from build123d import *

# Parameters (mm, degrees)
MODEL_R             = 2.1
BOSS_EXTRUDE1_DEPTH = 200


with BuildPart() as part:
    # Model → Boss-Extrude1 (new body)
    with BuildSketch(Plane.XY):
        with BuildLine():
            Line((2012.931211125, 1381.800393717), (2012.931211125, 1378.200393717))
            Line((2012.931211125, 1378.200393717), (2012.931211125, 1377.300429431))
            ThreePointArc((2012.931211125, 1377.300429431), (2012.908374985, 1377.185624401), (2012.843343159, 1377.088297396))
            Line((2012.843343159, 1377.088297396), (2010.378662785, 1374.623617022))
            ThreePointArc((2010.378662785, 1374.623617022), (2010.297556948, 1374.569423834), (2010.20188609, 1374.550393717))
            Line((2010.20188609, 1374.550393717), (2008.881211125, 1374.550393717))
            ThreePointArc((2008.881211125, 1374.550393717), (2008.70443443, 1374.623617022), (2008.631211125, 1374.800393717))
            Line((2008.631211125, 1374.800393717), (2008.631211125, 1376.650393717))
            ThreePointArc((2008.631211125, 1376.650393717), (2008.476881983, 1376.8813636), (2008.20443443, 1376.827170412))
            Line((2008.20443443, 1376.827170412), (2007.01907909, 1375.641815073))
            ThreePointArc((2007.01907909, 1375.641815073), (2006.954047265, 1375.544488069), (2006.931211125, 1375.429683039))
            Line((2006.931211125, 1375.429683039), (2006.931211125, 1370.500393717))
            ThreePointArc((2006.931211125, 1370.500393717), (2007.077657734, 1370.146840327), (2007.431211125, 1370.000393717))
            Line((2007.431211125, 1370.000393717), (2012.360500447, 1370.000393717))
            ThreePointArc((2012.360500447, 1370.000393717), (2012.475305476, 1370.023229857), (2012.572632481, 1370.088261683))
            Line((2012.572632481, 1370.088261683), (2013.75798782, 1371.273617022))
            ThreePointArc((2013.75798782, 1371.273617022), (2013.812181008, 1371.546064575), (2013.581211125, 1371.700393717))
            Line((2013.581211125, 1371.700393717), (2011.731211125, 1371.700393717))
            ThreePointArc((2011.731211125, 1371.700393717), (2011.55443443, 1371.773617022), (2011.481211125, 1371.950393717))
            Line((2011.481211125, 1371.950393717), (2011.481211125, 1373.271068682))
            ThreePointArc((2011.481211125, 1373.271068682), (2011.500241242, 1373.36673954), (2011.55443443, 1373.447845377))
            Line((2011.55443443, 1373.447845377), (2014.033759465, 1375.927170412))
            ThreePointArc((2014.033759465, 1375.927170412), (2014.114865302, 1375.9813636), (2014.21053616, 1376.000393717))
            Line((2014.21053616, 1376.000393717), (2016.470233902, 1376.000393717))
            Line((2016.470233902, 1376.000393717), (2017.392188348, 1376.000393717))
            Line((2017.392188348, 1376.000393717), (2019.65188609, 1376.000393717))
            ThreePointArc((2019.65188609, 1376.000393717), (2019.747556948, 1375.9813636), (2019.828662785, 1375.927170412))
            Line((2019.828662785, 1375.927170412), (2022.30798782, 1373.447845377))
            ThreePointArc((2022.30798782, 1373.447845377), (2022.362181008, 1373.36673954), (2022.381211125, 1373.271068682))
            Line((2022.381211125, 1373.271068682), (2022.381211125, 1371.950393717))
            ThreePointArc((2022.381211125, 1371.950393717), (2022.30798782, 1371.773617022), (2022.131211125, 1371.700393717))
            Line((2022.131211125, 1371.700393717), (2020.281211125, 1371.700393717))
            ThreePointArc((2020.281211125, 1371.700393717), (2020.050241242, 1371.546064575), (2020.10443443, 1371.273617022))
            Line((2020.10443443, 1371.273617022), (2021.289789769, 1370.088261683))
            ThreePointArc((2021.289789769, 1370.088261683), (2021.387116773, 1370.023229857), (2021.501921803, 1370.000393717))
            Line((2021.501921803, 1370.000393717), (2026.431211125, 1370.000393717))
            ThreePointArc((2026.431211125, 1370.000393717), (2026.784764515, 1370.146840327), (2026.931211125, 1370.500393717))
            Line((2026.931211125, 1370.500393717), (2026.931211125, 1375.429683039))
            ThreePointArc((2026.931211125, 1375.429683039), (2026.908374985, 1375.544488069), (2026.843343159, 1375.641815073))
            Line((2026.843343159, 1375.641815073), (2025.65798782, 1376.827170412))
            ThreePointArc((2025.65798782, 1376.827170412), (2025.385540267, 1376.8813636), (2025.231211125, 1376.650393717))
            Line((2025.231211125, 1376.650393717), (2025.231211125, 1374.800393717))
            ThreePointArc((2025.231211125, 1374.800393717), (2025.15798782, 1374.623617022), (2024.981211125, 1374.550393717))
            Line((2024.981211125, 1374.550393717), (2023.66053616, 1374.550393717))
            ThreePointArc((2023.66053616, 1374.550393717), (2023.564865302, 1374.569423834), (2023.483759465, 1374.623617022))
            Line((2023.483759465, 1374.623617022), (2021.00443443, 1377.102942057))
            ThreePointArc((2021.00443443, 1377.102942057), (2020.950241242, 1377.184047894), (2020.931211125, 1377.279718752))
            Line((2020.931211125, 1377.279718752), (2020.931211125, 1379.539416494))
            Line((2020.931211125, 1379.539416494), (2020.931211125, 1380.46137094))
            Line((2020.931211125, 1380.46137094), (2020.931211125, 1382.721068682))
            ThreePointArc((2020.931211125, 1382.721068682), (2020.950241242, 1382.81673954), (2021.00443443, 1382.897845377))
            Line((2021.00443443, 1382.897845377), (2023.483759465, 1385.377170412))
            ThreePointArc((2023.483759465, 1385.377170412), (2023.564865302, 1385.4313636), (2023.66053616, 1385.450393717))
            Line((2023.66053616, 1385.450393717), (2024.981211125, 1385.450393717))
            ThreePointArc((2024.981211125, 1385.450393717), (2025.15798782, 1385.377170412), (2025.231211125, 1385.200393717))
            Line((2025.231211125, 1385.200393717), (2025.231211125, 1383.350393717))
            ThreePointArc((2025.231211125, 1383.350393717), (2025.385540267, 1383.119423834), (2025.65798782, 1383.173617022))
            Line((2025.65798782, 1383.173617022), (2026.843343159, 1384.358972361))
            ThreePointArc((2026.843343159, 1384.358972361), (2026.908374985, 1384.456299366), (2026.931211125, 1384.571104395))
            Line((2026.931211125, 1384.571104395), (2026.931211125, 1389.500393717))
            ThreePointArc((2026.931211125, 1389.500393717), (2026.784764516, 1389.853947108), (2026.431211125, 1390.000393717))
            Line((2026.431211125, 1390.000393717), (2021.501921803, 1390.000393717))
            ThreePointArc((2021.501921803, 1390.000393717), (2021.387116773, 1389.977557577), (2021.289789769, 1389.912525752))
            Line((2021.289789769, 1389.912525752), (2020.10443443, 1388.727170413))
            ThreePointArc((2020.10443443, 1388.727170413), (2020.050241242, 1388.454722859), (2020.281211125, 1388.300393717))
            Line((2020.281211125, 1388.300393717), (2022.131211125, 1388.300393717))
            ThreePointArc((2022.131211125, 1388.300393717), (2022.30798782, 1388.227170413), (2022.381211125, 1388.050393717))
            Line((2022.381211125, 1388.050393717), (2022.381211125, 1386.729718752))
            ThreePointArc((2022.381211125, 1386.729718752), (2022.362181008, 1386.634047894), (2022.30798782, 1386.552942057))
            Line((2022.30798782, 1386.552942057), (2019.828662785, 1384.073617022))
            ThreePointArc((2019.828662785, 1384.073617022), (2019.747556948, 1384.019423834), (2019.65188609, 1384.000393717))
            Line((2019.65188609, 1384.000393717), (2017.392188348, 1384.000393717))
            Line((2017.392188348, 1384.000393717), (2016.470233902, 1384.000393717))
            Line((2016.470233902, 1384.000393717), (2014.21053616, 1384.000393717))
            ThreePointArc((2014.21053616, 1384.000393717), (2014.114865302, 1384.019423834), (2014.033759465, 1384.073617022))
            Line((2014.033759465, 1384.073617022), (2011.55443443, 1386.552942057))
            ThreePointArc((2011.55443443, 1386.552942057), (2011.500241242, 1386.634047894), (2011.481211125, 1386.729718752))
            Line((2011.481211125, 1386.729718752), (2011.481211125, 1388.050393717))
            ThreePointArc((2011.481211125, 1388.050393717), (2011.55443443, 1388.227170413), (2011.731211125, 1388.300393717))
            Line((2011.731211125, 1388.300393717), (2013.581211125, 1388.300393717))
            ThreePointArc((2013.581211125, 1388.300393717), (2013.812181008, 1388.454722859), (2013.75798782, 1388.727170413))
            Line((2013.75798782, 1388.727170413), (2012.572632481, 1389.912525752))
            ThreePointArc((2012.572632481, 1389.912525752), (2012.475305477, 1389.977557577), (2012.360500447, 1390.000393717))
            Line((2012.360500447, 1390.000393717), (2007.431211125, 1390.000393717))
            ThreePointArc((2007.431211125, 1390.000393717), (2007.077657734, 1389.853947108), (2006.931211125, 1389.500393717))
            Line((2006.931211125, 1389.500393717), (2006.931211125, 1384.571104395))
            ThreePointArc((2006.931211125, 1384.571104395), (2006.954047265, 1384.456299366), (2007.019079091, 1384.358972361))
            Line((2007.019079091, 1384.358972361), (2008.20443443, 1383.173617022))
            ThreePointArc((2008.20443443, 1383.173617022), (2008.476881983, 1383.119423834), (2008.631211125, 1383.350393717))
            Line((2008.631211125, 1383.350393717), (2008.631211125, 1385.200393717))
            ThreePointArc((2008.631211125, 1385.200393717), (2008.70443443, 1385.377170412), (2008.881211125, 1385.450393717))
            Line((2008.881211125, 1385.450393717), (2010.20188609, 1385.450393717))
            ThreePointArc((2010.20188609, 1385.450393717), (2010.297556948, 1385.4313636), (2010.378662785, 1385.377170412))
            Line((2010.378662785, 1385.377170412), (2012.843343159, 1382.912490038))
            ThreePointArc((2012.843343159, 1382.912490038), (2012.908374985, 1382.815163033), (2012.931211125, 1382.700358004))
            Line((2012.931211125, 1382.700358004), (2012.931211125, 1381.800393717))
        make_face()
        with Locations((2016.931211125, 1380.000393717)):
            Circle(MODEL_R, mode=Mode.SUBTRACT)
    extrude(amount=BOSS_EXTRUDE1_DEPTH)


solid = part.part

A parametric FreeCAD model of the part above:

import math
import FreeCAD as App
import Part
import Sketcher
from FreeCAD import Vector

doc = App.newDocument("Part")
params = doc.addObject("Spreadsheet::Sheet", "Params")
for row, (alias, value) in enumerate([
    ("sketch1_diameter", "4.2 mm"),
    ("sketch1_radius", "0.3 mm"),
    ("sketch1_radius2", "0.5 mm"),
    ("sketch1_radius3", "0.25 mm"),
    ("sketch1_width", "1.85 mm"),
    ("pad1_length", "200 mm"),
], start=1):
    params.set(f"A{row}", alias)
    params.set(f"B{row}", "=" + value)
    params.setAlias(f"B{row}", alias)

body = doc.addObject("PartDesign::Body", "Body")

# Sketch on XY plane
sketch1 = body.newObject("Sketcher::SketchObject", "Sketch")
sketch1.AttachmentSupport = (doc.getObject("XY_Plane"), [""])
sketch1.MapMode = "FlatFace"
sketch1.addGeometry(Part.ArcOfCircle(Part.Circle(Vector(2012.631211, 1377.300429, 0), Vector(0, 0, 1), 0.3), math.radians(-45), math.radians(0)), False)
sketch1.addGeometry(Part.LineSegment(Vector(2012.843343, 1377.088297, 0), Vector(2010.378663, 1374.623617, 0)), False)
sketch1.addGeometry(Part.ArcOfCircle(Part.Circle(Vector(2010.201886, 1374.800394, 0), Vector(0, 0, 1), 0.25), math.radians(-90), math.radians(-45)), False)
sketch1.addGeometry(Part.LineSegment(Vector(2010.201886, 1374.550394, 0), Vector(2008.881211, 1374.550394, 0)), False)
sketch1.addGeometry(Part.ArcOfCircle(Part.Circle(Vector(2008.881211, 1374.800394, 0), Vector(0, 0, 1), 0.25), math.radians(-180), math.radians(-90)), False)
sketch1.addGeometry(Part.LineSegment(Vector(2008.631211, 1374.800394, 0), Vector(2008.631211, 1376.650394, 0)), False)
sketch1.addGeometry(Part.ArcOfCircle(Part.Circle(Vector(2008.381211, 1376.650394, 0), Vector(0, 0, 1), 0.25), math.radians(0), math.radians(135)), False)
sketch1.addGeometry(Part.LineSegment(Vector(2008.204434, 1376.82717, 0), Vector(2007.019079, 1375.641815, 0)), False)
sketch1.addGeometry(Part.ArcOfCircle(Part.Circle(Vector(2007.231211, 1375.429683, 0), Vector(0, 0, 1), 0.3), math.radians(135), math.radians(180)), False)
sketch1.addGeometry(Part.LineSegment(Vector(2006.931211, 1375.429683, 0), Vector(2006.931211, 1370.500394, 0)), False)
sketch1.addGeometry(Part.ArcOfCircle(Part.Circle(Vector(2007.431211, 1370.500394, 0), Vector(0, 0, 1), 0.5), math.radians(180), math.radians(270)), False)
sketch1.addGeometry(Part.LineSegment(Vector(2007.431211, 1370.000394, 0), Vector(2012.3605, 1370.000394, 0)), False)
sketch1.addGeometry(Part.ArcOfCircle(Part.Circle(Vector(2012.3605, 1370.300394, 0), Vector(0, 0, 1), 0.3), math.radians(-90), math.radians(-45)), False)
sketch1.addGeometry(Part.LineSegment(Vector(2012.572632, 1370.088262, 0), Vector(2013.757988, 1371.273617, 0)), False)
sketch1.addGeometry(Part.ArcOfCircle(Part.Circle(Vector(2013.581211, 1371.450394, 0), Vector(0, 0, 1), 0.25), math.radians(-45), math.radians(90)), False)
sketch1.addGeometry(Part.LineSegment(Vector(2013.581211, 1371.700394, 0), Vector(2011.731211, 1371.700394, 0)), False)
sketch1.addGeometry(Part.ArcOfCircle(Part.Circle(Vector(2011.731211, 1371.950394, 0), Vector(0, 0, 1), 0.25), math.radians(-180), math.radians(-90)), False)
sketch1.addGeometry(Part.LineSegment(Vector(2011.481211, 1371.950394, 0), Vector(2011.481211, 1373.271069, 0)), False)
sketch1.addGeometry(Part.ArcOfCircle(Part.Circle(Vector(2011.731211, 1373.271069, 0), Vector(0, 0, 1), 0.25), math.radians(135), math.radians(180)), False)
sketch1.addGeometry(Part.LineSegment(Vector(2011.554434, 1373.447845, 0), Vector(2014.033759, 1375.92717, 0)), False)
sketch1.addGeometry(Part.ArcOfCircle(Part.Circle(Vector(2014.210536, 1375.750394, 0), Vector(0, 0, 1), 0.25), math.radians(90), math.radians(135)), False)
sketch1.addGeometry(Part.LineSegment(Vector(2014.210536, 1376.000394, 0), Vector(2019.651886, 1376.000394, 0)), False)
sketch1.addGeometry(Part.ArcOfCircle(Part.Circle(Vector(2019.651886, 1375.750394, 0), Vector(0, 0, 1), 0.25), math.radians(45), math.radians(90)), False)
sketch1.addGeometry(Part.LineSegment(Vector(2019.828663, 1375.92717, 0), Vector(2022.307988, 1373.447845, 0)), False)
sketch1.addGeometry(Part.ArcOfCircle(Part.Circle(Vector(2022.131211, 1373.271069, 0), Vector(0, 0, 1), 0.25), math.radians(0), math.radians(45)), False)
sketch1.addGeometry(Part.LineSegment(Vector(2022.381211, 1373.271069, 0), Vector(2022.381211, 1371.950394, 0)), False)
sketch1.addGeometry(Part.ArcOfCircle(Part.Circle(Vector(2022.131211, 1371.950394, 0), Vector(0, 0, 1), 0.25), math.radians(-90), math.radians(0)), False)
sketch1.addGeometry(Part.LineSegment(Vector(2022.131211, 1371.700394, 0), Vector(2020.281211, 1371.700394, 0)), False)
sketch1.addGeometry(Part.ArcOfCircle(Part.Circle(Vector(2020.281211, 1371.450394, 0), Vector(0, 0, 1), 0.25), math.radians(90), math.radians(225)), False)
sketch1.addGeometry(Part.LineSegment(Vector(2020.104434, 1371.273617, 0), Vector(2021.28979, 1370.088262, 0)), False)
sketch1.addGeometry(Part.ArcOfCircle(Part.Circle(Vector(2021.501922, 1370.300394, 0), Vector(0, 0, 1), 0.3), math.radians(-135.000001), math.radians(-90)), False)
sketch1.addGeometry(Part.LineSegment(Vector(2021.501922, 1370.000394, 0), Vector(2026.431211, 1370.000394, 0)), False)
sketch1.addGeometry(Part.ArcOfCircle(Part.Circle(Vector(2026.431211, 1370.500394, 0), Vector(0, 0, 1), 0.5), math.radians(-90), math.radians(0)), False)
sketch1.addGeometry(Part.LineSegment(Vector(2026.931211, 1370.500394, 0), Vector(2026.931211, 1375.429683, 0)), False)
sketch1.addGeometry(Part.ArcOfCircle(Part.Circle(Vector(2026.631211, 1375.429683, 0), Vector(0, 0, 1), 0.3), math.radians(0), math.radians(45.000001)), False)
sketch1.addGeometry(Part.LineSegment(Vector(2026.843343, 1375.641815, 0), Vector(2025.657988, 1376.82717, 0)), False)
sketch1.addGeometry(Part.ArcOfCircle(Part.Circle(Vector(2025.481211, 1376.650394, 0), Vector(0, 0, 1), 0.25), math.radians(45), math.radians(180)), False)
sketch1.addGeometry(Part.LineSegment(Vector(2025.231211, 1376.650394, 0), Vector(2025.231211, 1374.800394, 0)), False)
sketch1.addGeometry(Part.ArcOfCircle(Part.Circle(Vector(2024.981211, 1374.800394, 0), Vector(0, 0, 1), 0.25), math.radians(-90), math.radians(0)), False)
sketch1.addGeometry(Part.LineSegment(Vector(2024.981211, 1374.550394, 0), Vector(2023.660536, 1374.550394, 0)), False)
sketch1.addGeometry(Part.ArcOfCircle(Part.Circle(Vector(2023.660536, 1374.800394, 0), Vector(0, 0, 1), 0.25), math.radians(-135), math.radians(-90)), False)
sketch1.addGeometry(Part.LineSegment(Vector(2023.483759, 1374.623617, 0), Vector(2021.004434, 1377.102942, 0)), False)
sketch1.addGeometry(Part.ArcOfCircle(Part.Circle(Vector(2021.181211, 1377.279719, 0), Vector(0, 0, 1), 0.25), math.radians(180), math.radians(225)), False)
sketch1.addGeometry(Part.LineSegment(Vector(2020.931211, 1377.279719, 0), Vector(2020.931211, 1382.721069, 0)), False)
sketch1.addGeometry(Part.ArcOfCircle(Part.Circle(Vector(2021.181211, 1382.721069, 0), Vector(0, 0, 1), 0.25), math.radians(135), math.radians(180)), False)
sketch1.addGeometry(Part.LineSegment(Vector(2021.004434, 1382.897845, 0), Vector(2023.483759, 1385.37717, 0)), False)
sketch1.addGeometry(Part.ArcOfCircle(Part.Circle(Vector(2023.660536, 1385.200394, 0), Vector(0, 0, 1), 0.25), math.radians(90), math.radians(135)), False)
sketch1.addGeometry(Part.LineSegment(Vector(2023.660536, 1385.450394, 0), Vector(2024.981211, 1385.450394, 0)), False)
sketch1.addGeometry(Part.ArcOfCircle(Part.Circle(Vector(2024.981211, 1385.200394, 0), Vector(0, 0, 1), 0.25), math.radians(0), math.radians(90)), False)
sketch1.addGeometry(Part.LineSegment(Vector(2025.231211, 1385.200394, 0), Vector(2025.231211, 1383.350394, 0)), False)
sketch1.addGeometry(Part.ArcOfCircle(Part.Circle(Vector(2025.481211, 1383.350394, 0), Vector(0, 0, 1), 0.25), math.radians(180), math.radians(315)), False)
sketch1.addGeometry(Part.LineSegment(Vector(2025.657988, 1383.173617, 0), Vector(2026.843343, 1384.358972, 0)), False)
sketch1.addGeometry(Part.ArcOfCircle(Part.Circle(Vector(2026.631211, 1384.571104, 0), Vector(0, 0, 1), 0.3), math.radians(-45), math.radians(0)), False)
sketch1.addGeometry(Part.LineSegment(Vector(2026.931211, 1384.571104, 0), Vector(2026.931211, 1389.500394, 0)), False)
sketch1.addGeometry(Part.ArcOfCircle(Part.Circle(Vector(2026.431211, 1389.500394, 0), Vector(0, 0, 1), 0.5), math.radians(0), math.radians(90)), False)
sketch1.addGeometry(Part.LineSegment(Vector(2026.431211, 1390.000394, 0), Vector(2021.501922, 1390.000394, 0)), False)
sketch1.addGeometry(Part.ArcOfCircle(Part.Circle(Vector(2021.501922, 1389.700394, 0), Vector(0, 0, 1), 0.3), math.radians(90), math.radians(135)), False)
sketch1.addGeometry(Part.LineSegment(Vector(2021.28979, 1389.912526, 0), Vector(2020.104434, 1388.72717, 0)), False)
sketch1.addGeometry(Part.ArcOfCircle(Part.Circle(Vector(2020.281211, 1388.550394, 0), Vector(0, 0, 1), 0.25), math.radians(135), math.radians(270)), False)
sketch1.addGeometry(Part.LineSegment(Vector(2020.281211, 1388.300394, 0), Vector(2022.131211, 1388.300394, 0)), False)
sketch1.addGeometry(Part.ArcOfCircle(Part.Circle(Vector(2022.131211, 1388.050394, 0), Vector(0, 0, 1), 0.25), math.radians(0), math.radians(90)), False)
sketch1.addGeometry(Part.LineSegment(Vector(2022.381211, 1388.050394, 0), Vector(2022.381211, 1386.729719, 0)), False)
sketch1.addGeometry(Part.ArcOfCircle(Part.Circle(Vector(2022.131211, 1386.729719, 0), Vector(0, 0, 1), 0.25), math.radians(-45), math.radians(0)), False)
sketch1.addGeometry(Part.LineSegment(Vector(2022.307988, 1386.552942, 0), Vector(2019.828663, 1384.073617, 0)), False)
sketch1.addGeometry(Part.ArcOfCircle(Part.Circle(Vector(2019.651886, 1384.250394, 0), Vector(0, 0, 1), 0.25), math.radians(-90), math.radians(-45)), False)
sketch1.addGeometry(Part.LineSegment(Vector(2019.651886, 1384.000394, 0), Vector(2014.210536, 1384.000394, 0)), False)
sketch1.addGeometry(Part.ArcOfCircle(Part.Circle(Vector(2014.210536, 1384.250394, 0), Vector(0, 0, 1), 0.25), math.radians(-135), math.radians(-90)), False)
sketch1.addGeometry(Part.LineSegment(Vector(2014.033759, 1384.073617, 0), Vector(2011.554434, 1386.552942, 0)), False)
sketch1.addGeometry(Part.ArcOfCircle(Part.Circle(Vector(2011.731211, 1386.729719, 0), Vector(0, 0, 1), 0.25), math.radians(180), math.radians(225)), False)
sketch1.addGeometry(Part.LineSegment(Vector(2011.481211, 1386.729719, 0), Vector(2011.481211, 1388.050394, 0)), False)
sketch1.addGeometry(Part.ArcOfCircle(Part.Circle(Vector(2011.731211, 1388.050394, 0), Vector(0, 0, 1), 0.25), math.radians(90), math.radians(180)), False)
sketch1.addGeometry(Part.LineSegment(Vector(2011.731211, 1388.300394, 0), Vector(2013.581211, 1388.300394, 0)), False)
sketch1.addGeometry(Part.ArcOfCircle(Part.Circle(Vector(2013.581211, 1388.550394, 0), Vector(0, 0, 1), 0.25), math.radians(-90), math.radians(45)), False)
sketch1.addGeometry(Part.LineSegment(Vector(2013.757988, 1388.72717, 0), Vector(2012.572632, 1389.912526, 0)), False)
sketch1.addGeometry(Part.ArcOfCircle(Part.Circle(Vector(2012.3605, 1389.700394, 0), Vector(0, 0, 1), 0.3), math.radians(45), math.radians(90)), False)
sketch1.addGeometry(Part.LineSegment(Vector(2012.3605, 1390.000394, 0), Vector(2007.431211, 1390.000394, 0)), False)
sketch1.addGeometry(Part.ArcOfCircle(Part.Circle(Vector(2007.431211, 1389.500394, 0), Vector(0, 0, 1), 0.5), math.radians(90), math.radians(180)), False)
sketch1.addGeometry(Part.LineSegment(Vector(2006.931211, 1389.500394, 0), Vector(2006.931211, 1384.571104, 0)), False)
sketch1.addGeometry(Part.ArcOfCircle(Part.Circle(Vector(2007.231211, 1384.571104, 0), Vector(0, 0, 1), 0.3), math.radians(180), math.radians(225)), False)
sketch1.addGeometry(Part.LineSegment(Vector(2007.019079, 1384.358972, 0), Vector(2008.204434, 1383.173617, 0)), False)
sketch1.addGeometry(Part.ArcOfCircle(Part.Circle(Vector(2008.381211, 1383.350394, 0), Vector(0, 0, 1), 0.25), math.radians(-135), math.radians(0)), False)
sketch1.addGeometry(Part.LineSegment(Vector(2008.631211, 1383.350394, 0), Vector(2008.631211, 1385.200394, 0)), False)
sketch1.addGeometry(Part.ArcOfCircle(Part.Circle(Vector(2008.881211, 1385.200394, 0), Vector(0, 0, 1), 0.25), math.radians(90), math.radians(180)), False)
sketch1.addGeometry(Part.LineSegment(Vector(2008.881211, 1385.450394, 0), Vector(2010.201886, 1385.450394, 0)), False)
sketch1.addGeometry(Part.ArcOfCircle(Part.Circle(Vector(2010.201886, 1385.200394, 0), Vector(0, 0, 1), 0.25), math.radians(45), math.radians(90)), False)
sketch1.addGeometry(Part.LineSegment(Vector(2010.378663, 1385.37717, 0), Vector(2012.843343, 1382.91249, 0)), False)
sketch1.addGeometry(Part.ArcOfCircle(Part.Circle(Vector(2012.631211, 1382.700358, 0), Vector(0, 0, 1), 0.3), math.radians(0), math.radians(45)), False)
sketch1.addGeometry(Part.LineSegment(Vector(2012.931211, 1382.700358, 0), Vector(2012.931211, 1377.300429, 0)), False)
sketch1.addGeometry(Part.Circle(Vector(2016.931211, 1380.000394, 0), Vector(0, 0, 1), 2.1), False)
sketch1.addConstraint(Sketcher.Constraint("Tangent", 0, 1, 1, 1))
sketch1.addConstraint(Sketcher.Constraint("Tangent", 1, 2, 2, 2))
sketch1.addConstraint(Sketcher.Constraint("Tangent", 2, 1, 3, 1))
sketch1.addConstraint(Sketcher.Constraint("Tangent", 3, 2, 4, 2))
sketch1.addConstraint(Sketcher.Constraint("Tangent", 4, 1, 5, 1))
sketch1.addConstraint(Sketcher.Constraint("Tangent", 5, 2, 6, 1))
sketch1.addConstraint(Sketcher.Constraint("Tangent", 6, 2, 7, 1))
sketch1.addConstraint(Sketcher.Constraint("Tangent", 7, 2, 8, 1))
sketch1.addConstraint(Sketcher.Constraint("Tangent", 8, 2, 9, 1))
sketch1.addConstraint(Sketcher.Constraint("Tangent", 9, 2, 10, 1))
sketch1.addConstraint(Sketcher.Constraint("Tangent", 10, 2, 11, 1))
sketch1.addConstraint(Sketcher.Constraint("Tangent", 11, 2, 12, 1))
sketch1.addConstraint(Sketcher.Constraint("Tangent", 12, 2, 13, 1))
sketch1.addConstraint(Sketcher.Constraint("Tangent", 13, 2, 14, 1))
sketch1.addConstraint(Sketcher.Constraint("Tangent", 14, 2, 15, 1))
sketch1.addConstraint(Sketcher.Constraint("Tangent", 15, 2, 16, 2))
sketch1.addConstraint(Sketcher.Constraint("Tangent", 16, 1, 17, 1))
sketch1.addConstraint(Sketcher.Constraint("Tangent", 17, 2, 18, 2))
sketch1.addConstraint(Sketcher.Constraint("Tangent", 18, 1, 19, 1))
sketch1.addConstraint(Sketcher.Constraint("Tangent", 19, 2, 20, 2))
sketch1.addConstraint(Sketcher.Constraint("Tangent", 20, 1, 21, 1))
sketch1.addConstraint(Sketcher.Constraint("Tangent", 21, 2, 22, 2))
sketch1.addConstraint(Sketcher.Constraint("Tangent", 22, 1, 23, 1))
sketch1.addConstraint(Sketcher.Constraint("Tangent", 23, 2, 24, 2))
sketch1.addConstraint(Sketcher.Constraint("Tangent", 24, 1, 25, 1))
sketch1.addConstraint(Sketcher.Constraint("Tangent", 25, 2, 26, 2))
sketch1.addConstraint(Sketcher.Constraint("Tangent", 26, 1, 27, 1))
sketch1.addConstraint(Sketcher.Constraint("Tangent", 27, 2, 28, 1))
sketch1.addConstraint(Sketcher.Constraint("Tangent", 28, 2, 29, 1))
sketch1.addConstraint(Sketcher.Constraint("Tangent", 29, 2, 30, 1))
sketch1.addConstraint(Sketcher.Constraint("Tangent", 30, 2, 31, 1))
sketch1.addConstraint(Sketcher.Constraint("Tangent", 31, 2, 32, 1))
sketch1.addConstraint(Sketcher.Constraint("Tangent", 32, 2, 33, 1))
sketch1.addConstraint(Sketcher.Constraint("Tangent", 33, 2, 34, 1))
sketch1.addConstraint(Sketcher.Constraint("Tangent", 34, 2, 35, 1))
sketch1.addConstraint(Sketcher.Constraint("Tangent", 35, 2, 36, 1))
sketch1.addConstraint(Sketcher.Constraint("Tangent", 36, 2, 37, 1))
sketch1.addConstraint(Sketcher.Constraint("Tangent", 37, 2, 38, 2))
sketch1.addConstraint(Sketcher.Constraint("Tangent", 38, 1, 39, 1))
sketch1.addConstraint(Sketcher.Constraint("Tangent", 39, 2, 40, 2))
sketch1.addConstraint(Sketcher.Constraint("Tangent", 40, 1, 41, 1))
sketch1.addConstraint(Sketcher.Constraint("Tangent", 41, 2, 42, 2))
sketch1.addConstraint(Sketcher.Constraint("Tangent", 42, 1, 43, 1))
sketch1.addConstraint(Sketcher.Constraint("Tangent", 43, 2, 44, 2))
sketch1.addConstraint(Sketcher.Constraint("Tangent", 44, 1, 45, 1))
sketch1.addConstraint(Sketcher.Constraint("Tangent", 45, 2, 46, 2))
sketch1.addConstraint(Sketcher.Constraint("Tangent", 46, 1, 47, 1))
sketch1.addConstraint(Sketcher.Constraint("Tangent", 47, 2, 48, 2))
sketch1.addConstraint(Sketcher.Constraint("Tangent", 48, 1, 49, 1))
sketch1.addConstraint(Sketcher.Constraint("Tangent", 49, 2, 50, 1))
sketch1.addConstraint(Sketcher.Constraint("Tangent", 50, 2, 51, 1))
sketch1.addConstraint(Sketcher.Constraint("Tangent", 51, 2, 52, 1))
sketch1.addConstraint(Sketcher.Constraint("Tangent", 52, 2, 53, 1))
sketch1.addConstraint(Sketcher.Constraint("Tangent", 53, 2, 54, 1))
sketch1.addConstraint(Sketcher.Constraint("Tangent", 54, 2, 55, 1))
sketch1.addConstraint(Sketcher.Constraint("Tangent", 55, 2, 56, 1))
sketch1.addConstraint(Sketcher.Constraint("Tangent", 56, 2, 57, 1))
sketch1.addConstraint(Sketcher.Constraint("Tangent", 57, 2, 58, 1))
sketch1.addConstraint(Sketcher.Constraint("Tangent", 58, 2, 59, 1))
sketch1.addConstraint(Sketcher.Constraint("Tangent", 59, 2, 60, 2))
sketch1.addConstraint(Sketcher.Constraint("Tangent", 60, 1, 61, 1))
sketch1.addConstraint(Sketcher.Constraint("Tangent", 61, 2, 62, 2))
sketch1.addConstraint(Sketcher.Constraint("Tangent", 62, 1, 63, 1))
sketch1.addConstraint(Sketcher.Constraint("Tangent", 63, 2, 64, 2))
sketch1.addConstraint(Sketcher.Constraint("Tangent", 64, 1, 65, 1))
sketch1.addConstraint(Sketcher.Constraint("Tangent", 65, 2, 66, 2))
sketch1.addConstraint(Sketcher.Constraint("Tangent", 66, 1, 67, 1))
sketch1.addConstraint(Sketcher.Constraint("Tangent", 67, 2, 68, 2))
sketch1.addConstraint(Sketcher.Constraint("Tangent", 68, 1, 69, 1))
sketch1.addConstraint(Sketcher.Constraint("Tangent", 69, 2, 70, 2))
sketch1.addConstraint(Sketcher.Constraint("Tangent", 70, 1, 71, 1))
sketch1.addConstraint(Sketcher.Constraint("Tangent", 71, 2, 72, 1))
sketch1.addConstraint(Sketcher.Constraint("Tangent", 72, 2, 73, 1))
sketch1.addConstraint(Sketcher.Constraint("Tangent", 73, 2, 74, 1))
sketch1.addConstraint(Sketcher.Constraint("Tangent", 74, 2, 75, 1))
sketch1.addConstraint(Sketcher.Constraint("Tangent", 75, 2, 76, 1))
sketch1.addConstraint(Sketcher.Constraint("Tangent", 76, 2, 77, 1))
sketch1.addConstraint(Sketcher.Constraint("Tangent", 77, 2, 78, 1))
sketch1.addConstraint(Sketcher.Constraint("Tangent", 78, 2, 79, 1))
sketch1.addConstraint(Sketcher.Constraint("Tangent", 79, 2, 80, 1))
sketch1.addConstraint(Sketcher.Constraint("Tangent", 80, 2, 81, 1))
sketch1.addConstraint(Sketcher.Constraint("Tangent", 81, 2, 82, 2))
sketch1.addConstraint(Sketcher.Constraint("Tangent", 82, 1, 83, 1))
sketch1.addConstraint(Sketcher.Constraint("Tangent", 83, 2, 84, 2))
sketch1.addConstraint(Sketcher.Constraint("Tangent", 84, 1, 85, 1))
sketch1.addConstraint(Sketcher.Constraint("Tangent", 85, 2, 86, 2))
sketch1.addConstraint(Sketcher.Constraint("Tangent", 86, 1, 87, 1))
sketch1.addConstraint(Sketcher.Constraint("Tangent", 87, 2, 0, 2))
sketch1.addConstraint(Sketcher.Constraint("Horizontal", 3))
sketch1.addConstraint(Sketcher.Constraint("Vertical", 5))
sketch1.addConstraint(Sketcher.Constraint("Vertical", 9))
sketch1.addConstraint(Sketcher.Constraint("Horizontal", 11))
sketch1.addConstraint(Sketcher.Constraint("Horizontal", 15))
sketch1.addConstraint(Sketcher.Constraint("Vertical", 17))
sketch1.addConstraint(Sketcher.Constraint("Horizontal", 21))
sketch1.addConstraint(Sketcher.Constraint("Vertical", 25))
sketch1.addConstraint(Sketcher.Constraint("Horizontal", 27))
sketch1.addConstraint(Sketcher.Constraint("Horizontal", 31))
sketch1.addConstraint(Sketcher.Constraint("Vertical", 33))
sketch1.addConstraint(Sketcher.Constraint("Vertical", 37))
sketch1.addConstraint(Sketcher.Constraint("Horizontal", 39))
sketch1.addConstraint(Sketcher.Constraint("Vertical", 43))
sketch1.addConstraint(Sketcher.Constraint("Horizontal", 47))
sketch1.addConstraint(Sketcher.Constraint("Vertical", 49))
sketch1.addConstraint(Sketcher.Constraint("Vertical", 53))
sketch1.addConstraint(Sketcher.Constraint("Horizontal", 55))
sketch1.addConstraint(Sketcher.Constraint("Horizontal", 59))
sketch1.addConstraint(Sketcher.Constraint("Vertical", 61))
sketch1.addConstraint(Sketcher.Constraint("Horizontal", 65))
sketch1.addConstraint(Sketcher.Constraint("Vertical", 69))
sketch1.addConstraint(Sketcher.Constraint("Horizontal", 71))
sketch1.addConstraint(Sketcher.Constraint("Horizontal", 75))
sketch1.addConstraint(Sketcher.Constraint("Vertical", 77))
sketch1.addConstraint(Sketcher.Constraint("Vertical", 81))
sketch1.addConstraint(Sketcher.Constraint("Horizontal", 83))
sketch1.addConstraint(Sketcher.Constraint("Vertical", 87))
sketch1.addConstraint(Sketcher.Constraint("Equal", 2, 4))
sketch1.addConstraint(Sketcher.Constraint("Equal", 4, 6))
sketch1.addConstraint(Sketcher.Constraint("Equal", 0, 8))
sketch1.addConstraint(Sketcher.Constraint("Equal", 8, 12))
sketch1.addConstraint(Sketcher.Constraint("Equal", 6, 14))
sketch1.addConstraint(Sketcher.Constraint("Equal", 14, 16))
sketch1.addConstraint(Sketcher.Constraint("Equal", 16, 18))
sketch1.addConstraint(Sketcher.Constraint("Equal", 18, 20))
sketch1.addConstraint(Sketcher.Constraint("Equal", 20, 22))
sketch1.addConstraint(Sketcher.Constraint("Equal", 22, 24))
sketch1.addConstraint(Sketcher.Constraint("Equal", 24, 26))
sketch1.addConstraint(Sketcher.Constraint("Equal", 26, 28))
sketch1.addConstraint(Sketcher.Constraint("Equal", 12, 30))
sketch1.addConstraint(Sketcher.Constraint("Equal", 10, 32))
sketch1.addConstraint(Sketcher.Constraint("Equal", 30, 34))
sketch1.addConstraint(Sketcher.Constraint("Equal", 28, 36))
sketch1.addConstraint(Sketcher.Constraint("Equal", 36, 38))
sketch1.addConstraint(Sketcher.Constraint("Equal", 38, 40))
sketch1.addConstraint(Sketcher.Constraint("Equal", 40, 42))
sketch1.addConstraint(Sketcher.Constraint("Equal", 42, 44))
sketch1.addConstraint(Sketcher.Constraint("Equal", 44, 46))
sketch1.addConstraint(Sketcher.Constraint("Equal", 46, 48))
sketch1.addConstraint(Sketcher.Constraint("Equal", 48, 50))
sketch1.addConstraint(Sketcher.Constraint("Equal", 34, 52))
sketch1.addConstraint(Sketcher.Constraint("Equal", 32, 54))
sketch1.addConstraint(Sketcher.Constraint("Equal", 52, 56))
sketch1.addConstraint(Sketcher.Constraint("Equal", 50, 58))
sketch1.addConstraint(Sketcher.Constraint("Equal", 58, 60))
sketch1.addConstraint(Sketcher.Constraint("Equal", 60, 62))
sketch1.addConstraint(Sketcher.Constraint("Equal", 62, 64))
sketch1.addConstraint(Sketcher.Constraint("Equal", 64, 66))
sketch1.addConstraint(Sketcher.Constraint("Equal", 66, 68))
sketch1.addConstraint(Sketcher.Constraint("Equal", 68, 70))
sketch1.addConstraint(Sketcher.Constraint("Equal", 70, 72))
sketch1.addConstraint(Sketcher.Constraint("Equal", 56, 74))
sketch1.addConstraint(Sketcher.Constraint("Equal", 54, 76))
sketch1.addConstraint(Sketcher.Constraint("Equal", 74, 78))
sketch1.addConstraint(Sketcher.Constraint("Equal", 72, 80))
sketch1.addConstraint(Sketcher.Constraint("Equal", 80, 82))
sketch1.addConstraint(Sketcher.Constraint("Equal", 82, 84))
sketch1.addConstraint(Sketcher.Constraint("Equal", 78, 86))
sketch1.addConstraint(Sketcher.Constraint("Parallel", 1, 7))
sketch1.addConstraint(Sketcher.Constraint("Parallel", 7, 13))
sketch1.addConstraint(Sketcher.Constraint("Parallel", 13, 19))
sketch1.addConstraint(Sketcher.Constraint("Perpendicular", 19, 23))
sketch1.addConstraint(Sketcher.Constraint("Parallel", 23, 29))
sketch1.addConstraint(Sketcher.Constraint("Parallel", 29, 35))
sketch1.addConstraint(Sketcher.Constraint("Parallel", 35, 41))
sketch1.addConstraint(Sketcher.Constraint("Perpendicular", 41, 45))
sketch1.addConstraint(Sketcher.Constraint("Parallel", 45, 51))
sketch1.addConstraint(Sketcher.Constraint("Parallel", 51, 57))
sketch1.addConstraint(Sketcher.Constraint("Parallel", 57, 63))
sketch1.addConstraint(Sketcher.Constraint("Perpendicular", 63, 67))
sketch1.addConstraint(Sketcher.Constraint("Parallel", 67, 73))
sketch1.addConstraint(Sketcher.Constraint("Parallel", 73, 79))
sketch1.addConstraint(Sketcher.Constraint("Parallel", 79, 85))
sketch1.addConstraint(Sketcher.Constraint("Horizontal", 18, 3, 24, 3))
sketch1.addConstraint(Sketcher.Constraint("Horizontal", 16, 3, 26, 3))
sketch1.addConstraint(Sketcher.Constraint("Horizontal", 12, 3, 30, 3))
sketch1.addConstraint(Sketcher.Constraint("Horizontal", 8, 3, 34, 3))
sketch1.addConstraint(Sketcher.Constraint("Horizontal", 6, 3, 36, 3))
sketch1.addConstraint(Sketcher.Constraint("Horizontal", 4, 3, 38, 3))
sketch1.addConstraint(Sketcher.Constraint("Horizontal", 62, 3, 68, 3))
sketch1.addConstraint(Sketcher.Constraint("Horizontal", 60, 3, 70, 3))
sketch1.addConstraint(Sketcher.Constraint("Horizontal", 56, 3, 74, 3))
sketch1.addConstraint(Sketcher.Constraint("Horizontal", 52, 3, 78, 3))
sketch1.addConstraint(Sketcher.Constraint("Horizontal", 50, 3, 80, 3))
sketch1.addConstraint(Sketcher.Constraint("Horizontal", 48, 3, 82, 3))
sketch1.addConstraint(Sketcher.Constraint("Horizontal", 19, 2, 22, 1))
sketch1.addConstraint(Sketcher.Constraint("Vertical", 40, 3, 46, 3))
sketch1.addConstraint(Sketcher.Constraint("Vertical", 38, 3, 48, 3))
sketch1.addConstraint(Sketcher.Constraint("Vertical", 34, 3, 52, 3))
sketch1.addConstraint(Sketcher.Constraint("Vertical", 30, 3, 56, 3))
sketch1.addConstraint(Sketcher.Constraint("Vertical", 28, 3, 58, 3))
sketch1.addConstraint(Sketcher.Constraint("Vertical", 26, 3, 60, 3))
sketch1.addConstraint(Sketcher.Constraint("Vertical", 22, 3, 64, 3))
sketch1.addConstraint(Sketcher.Constraint("Vertical", 20, 3, 66, 3))
sketch1.addConstraint(Sketcher.Constraint("Vertical", 14, 3, 72, 3))
sketch1.addConstraint(Sketcher.Constraint("Vertical", 10, 3, 76, 3))
sketch1.addConstraint(Sketcher.Constraint("Vertical", 2, 3, 84, 3))
sketch1.addConstraint(Sketcher.Constraint("Equal", 15, 27))
sketch1.addConstraint(Sketcher.Constraint("Equal", 11, 31))
sketch1.addConstraint(Sketcher.Constraint("Equal", 3, 39))
sketch1.addConstraint(Sketcher.Constraint("Equal", 71, 5))
sketch1.addConstraint(Sketcher.Constraint("Equal", 75, 9))
sketch1.addConstraint(Sketcher.Constraint("Equal", 83, 17))
sketch1.addConstraint(Sketcher.Constraint("Equal", 65, 43))
sketch1.addConstraint(Sketcher.Constraint("Equal", 37, 49))
sketch1.addConstraint(Sketcher.Constraint("Equal", 33, 53))
sketch1.addConstraint(Sketcher.Constraint("Equal", 25, 61))
sketch1.addConstraint(Sketcher.Constraint("Equal", 7, 13))
sketch1.addConstraint(Sketcher.Constraint("Equal", 23, 41))
sketch1.addConstraint(Sketcher.Constraint("Diameter", 88, 4.2))
sketch1.addConstraint(Sketcher.Constraint("Radius", 0, 0.3))
sketch1.addConstraint(Sketcher.Constraint("Radius", 10, 0.5))
sketch1.addConstraint(Sketcher.Constraint("Radius", 2, 0.25))
sketch1.addConstraint(Sketcher.Constraint("DistanceX", 15, 2, 15, 1, 1.85))
sketch1.addConstraint(Sketcher.Constraint("DistanceX", 11, 1, 11, 2, 4.929289))
sketch1.addConstraint(Sketcher.Constraint("DistanceX", 21, 1, 21, 2, 5.44135))
sketch1.addConstraint(Sketcher.Constraint("DistanceY", 87, 2, 87, 1, 5.399929))
sketch1.addConstraint(Sketcher.Constraint("DistanceX", -1, 1, 12, 3, 2012.3605))
sketch1.addConstraint(Sketcher.Constraint("DistanceX", 3, 2, 3, 1, 1.320675))
sketch1.addConstraint(Sketcher.Constraint("DistanceX", -1, 1, 0, 3, 2012.631211))
sketch1.addConstraint(Sketcher.Constraint("DistanceY", -1, 1, 0, 3, 1377.300429))
sketch1.addConstraint(Sketcher.Constraint("DistanceX", -1, 1, 4, 3, 2008.881211))
sketch1.addConstraint(Sketcher.Constraint("DistanceX", -1, 1, 88, 3, 2016.931211))
sketch1.addConstraint(Sketcher.Constraint("DistanceY", -1, 1, 88, 3, 1380.000394))
sketch1.setExpression("Constraints[208]", "Params.sketch1_diameter")
sketch1.setExpression("Constraints[209]", "Params.sketch1_radius")
sketch1.setExpression("Constraints[210]", "Params.sketch1_radius2")
sketch1.setExpression("Constraints[211]", "Params.sketch1_radius3")
sketch1.setExpression("Constraints[212]", "Params.sketch1_width")
pad1 = body.newObject("PartDesign::Pad", "Pad")
pad1.Profile = sketch1
pad1.setExpression("Length", "Params.pad1_length")

doc.recompute()
